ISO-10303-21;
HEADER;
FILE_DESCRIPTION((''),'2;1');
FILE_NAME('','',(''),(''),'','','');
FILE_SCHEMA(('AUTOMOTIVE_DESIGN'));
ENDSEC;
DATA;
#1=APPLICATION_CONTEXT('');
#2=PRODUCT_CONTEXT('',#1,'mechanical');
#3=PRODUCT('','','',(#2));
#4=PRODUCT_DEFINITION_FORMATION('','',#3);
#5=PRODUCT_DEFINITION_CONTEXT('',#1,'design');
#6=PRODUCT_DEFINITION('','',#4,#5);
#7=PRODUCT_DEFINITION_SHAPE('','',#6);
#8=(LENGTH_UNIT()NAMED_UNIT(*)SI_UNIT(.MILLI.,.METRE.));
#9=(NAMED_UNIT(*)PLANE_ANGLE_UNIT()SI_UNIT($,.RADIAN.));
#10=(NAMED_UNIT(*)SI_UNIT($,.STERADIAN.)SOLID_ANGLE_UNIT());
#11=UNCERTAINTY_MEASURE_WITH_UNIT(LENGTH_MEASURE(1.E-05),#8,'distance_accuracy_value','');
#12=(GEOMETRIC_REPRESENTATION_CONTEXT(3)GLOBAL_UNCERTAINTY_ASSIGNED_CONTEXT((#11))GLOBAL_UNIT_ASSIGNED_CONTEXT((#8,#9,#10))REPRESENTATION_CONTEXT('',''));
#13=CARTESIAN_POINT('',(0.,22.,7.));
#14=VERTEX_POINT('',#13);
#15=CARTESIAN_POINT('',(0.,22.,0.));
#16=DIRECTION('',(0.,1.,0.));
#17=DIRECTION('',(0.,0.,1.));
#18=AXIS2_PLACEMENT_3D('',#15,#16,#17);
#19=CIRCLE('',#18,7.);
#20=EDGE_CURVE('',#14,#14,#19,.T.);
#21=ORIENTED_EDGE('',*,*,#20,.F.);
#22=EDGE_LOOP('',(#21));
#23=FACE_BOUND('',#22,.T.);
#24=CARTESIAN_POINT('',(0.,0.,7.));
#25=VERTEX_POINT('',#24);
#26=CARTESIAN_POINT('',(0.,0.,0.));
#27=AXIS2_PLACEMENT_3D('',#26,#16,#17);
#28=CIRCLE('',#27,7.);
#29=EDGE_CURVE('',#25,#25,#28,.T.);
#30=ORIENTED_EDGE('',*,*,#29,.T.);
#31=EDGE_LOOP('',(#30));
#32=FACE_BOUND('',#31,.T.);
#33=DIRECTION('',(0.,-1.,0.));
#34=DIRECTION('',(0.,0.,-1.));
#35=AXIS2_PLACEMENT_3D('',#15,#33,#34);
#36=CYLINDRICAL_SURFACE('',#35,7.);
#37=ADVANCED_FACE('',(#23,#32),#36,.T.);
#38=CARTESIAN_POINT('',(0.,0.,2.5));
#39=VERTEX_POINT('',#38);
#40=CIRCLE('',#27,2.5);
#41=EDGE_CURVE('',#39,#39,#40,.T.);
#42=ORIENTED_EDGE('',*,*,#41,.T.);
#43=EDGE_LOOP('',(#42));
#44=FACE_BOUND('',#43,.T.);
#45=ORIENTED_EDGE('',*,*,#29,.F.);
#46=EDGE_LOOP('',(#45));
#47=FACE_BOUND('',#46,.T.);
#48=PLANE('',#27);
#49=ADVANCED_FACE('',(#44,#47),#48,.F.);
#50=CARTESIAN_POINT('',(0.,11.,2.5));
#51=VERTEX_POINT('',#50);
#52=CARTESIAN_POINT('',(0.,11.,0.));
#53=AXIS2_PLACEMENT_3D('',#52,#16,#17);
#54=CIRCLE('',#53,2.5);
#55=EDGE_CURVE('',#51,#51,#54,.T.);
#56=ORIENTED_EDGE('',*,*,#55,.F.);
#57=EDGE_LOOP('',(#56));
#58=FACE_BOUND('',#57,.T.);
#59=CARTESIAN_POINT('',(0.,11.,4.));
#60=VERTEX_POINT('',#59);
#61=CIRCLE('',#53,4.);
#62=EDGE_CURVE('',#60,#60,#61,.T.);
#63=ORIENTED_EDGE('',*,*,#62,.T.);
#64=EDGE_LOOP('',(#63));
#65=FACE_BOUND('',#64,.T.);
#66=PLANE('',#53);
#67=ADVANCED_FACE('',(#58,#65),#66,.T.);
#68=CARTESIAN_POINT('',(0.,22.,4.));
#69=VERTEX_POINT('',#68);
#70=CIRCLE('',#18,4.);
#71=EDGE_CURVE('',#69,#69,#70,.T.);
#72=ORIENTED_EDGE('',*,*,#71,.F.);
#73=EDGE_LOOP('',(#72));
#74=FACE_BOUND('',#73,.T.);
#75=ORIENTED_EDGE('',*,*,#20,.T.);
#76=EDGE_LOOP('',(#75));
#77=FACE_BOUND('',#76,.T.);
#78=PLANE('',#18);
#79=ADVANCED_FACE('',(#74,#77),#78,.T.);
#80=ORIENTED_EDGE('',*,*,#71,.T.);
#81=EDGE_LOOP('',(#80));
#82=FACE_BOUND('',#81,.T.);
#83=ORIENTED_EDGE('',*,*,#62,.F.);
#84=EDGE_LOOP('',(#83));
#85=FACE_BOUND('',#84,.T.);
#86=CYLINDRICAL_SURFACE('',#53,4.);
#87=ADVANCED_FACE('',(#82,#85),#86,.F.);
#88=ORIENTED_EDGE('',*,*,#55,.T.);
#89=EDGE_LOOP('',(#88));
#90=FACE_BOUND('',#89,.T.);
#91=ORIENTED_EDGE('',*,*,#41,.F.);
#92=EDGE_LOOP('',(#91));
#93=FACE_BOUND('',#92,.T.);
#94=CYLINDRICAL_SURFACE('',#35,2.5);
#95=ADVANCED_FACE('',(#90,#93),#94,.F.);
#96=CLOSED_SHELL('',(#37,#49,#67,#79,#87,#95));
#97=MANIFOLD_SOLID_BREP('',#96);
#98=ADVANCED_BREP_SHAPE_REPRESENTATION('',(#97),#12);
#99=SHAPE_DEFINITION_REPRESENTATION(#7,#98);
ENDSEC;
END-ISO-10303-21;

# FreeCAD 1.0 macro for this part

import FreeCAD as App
import Part
import Sketcher
from FreeCAD import Vector

doc = App.newDocument("Part")
body = doc.addObject("PartDesign::Body", "Body")

# Sketch on XZ plane
sketch1 = doc.addObject("Sketcher::SketchObject", "Sketch")
body.addObject(sketch1)
sketch1.AttachmentSupport = (doc.XZ_Plane, [""])
sketch1.MapMode = "FlatFace"
sketch1.addGeometry(Part.Circle(Vector(0, 0, 0), Vector(0, 0, 1), 7), False)
sketch1.addGeometry(Part.Circle(Vector(0, 0, 0), Vector(0, 0, 1), 2.5), False)
sketch1.addConstraint(Sketcher.Constraint("Coincident", 0, 3, -1, 1))
sketch1.addConstraint(Sketcher.Constraint("Coincident", 1, 3, -1, 1))
sketch1.addConstraint(Sketcher.Constraint("Diameter", 0, 14.0))
sketch1.addConstraint(Sketcher.Constraint("Diameter", 1, 5.0))
pad1 = doc.addObject("PartDesign::Pad", "Pad")
body.addObject(pad1)
pad1.Profile = sketch1
pad1.Length = 22
pad1.Reversed = True

# Sketch on XZ plane
sketch2 = doc.addObject("Sketcher::SketchObject", "Sketch001")
body.addObject(sketch2)
sketch2.AttachmentSupport = (doc.XZ_Plane, [""])
sketch2.MapMode = "FlatFace"
sketch2.AttachmentOffset = App.Placement(Vector(0, 0, -22), App.Rotation())
sketch2.addGeometry(Part.Circle(Vector(0, 0, 0), Vector(0, 0, 1), 4), False)
sketch2.addConstraint(Sketcher.Constraint("Coincident", 0, 3, -1, 1))
sketch2.addConstraint(Sketcher.Constraint("Diameter", 0, 8.0))
pocket1 = doc.addObject("PartDesign::Pocket", "Pocket")
body.addObject(pocket1)
pocket1.Profile = sketch2
pocket1.Length = 11
pocket1.Reversed = True

doc.recompute()
